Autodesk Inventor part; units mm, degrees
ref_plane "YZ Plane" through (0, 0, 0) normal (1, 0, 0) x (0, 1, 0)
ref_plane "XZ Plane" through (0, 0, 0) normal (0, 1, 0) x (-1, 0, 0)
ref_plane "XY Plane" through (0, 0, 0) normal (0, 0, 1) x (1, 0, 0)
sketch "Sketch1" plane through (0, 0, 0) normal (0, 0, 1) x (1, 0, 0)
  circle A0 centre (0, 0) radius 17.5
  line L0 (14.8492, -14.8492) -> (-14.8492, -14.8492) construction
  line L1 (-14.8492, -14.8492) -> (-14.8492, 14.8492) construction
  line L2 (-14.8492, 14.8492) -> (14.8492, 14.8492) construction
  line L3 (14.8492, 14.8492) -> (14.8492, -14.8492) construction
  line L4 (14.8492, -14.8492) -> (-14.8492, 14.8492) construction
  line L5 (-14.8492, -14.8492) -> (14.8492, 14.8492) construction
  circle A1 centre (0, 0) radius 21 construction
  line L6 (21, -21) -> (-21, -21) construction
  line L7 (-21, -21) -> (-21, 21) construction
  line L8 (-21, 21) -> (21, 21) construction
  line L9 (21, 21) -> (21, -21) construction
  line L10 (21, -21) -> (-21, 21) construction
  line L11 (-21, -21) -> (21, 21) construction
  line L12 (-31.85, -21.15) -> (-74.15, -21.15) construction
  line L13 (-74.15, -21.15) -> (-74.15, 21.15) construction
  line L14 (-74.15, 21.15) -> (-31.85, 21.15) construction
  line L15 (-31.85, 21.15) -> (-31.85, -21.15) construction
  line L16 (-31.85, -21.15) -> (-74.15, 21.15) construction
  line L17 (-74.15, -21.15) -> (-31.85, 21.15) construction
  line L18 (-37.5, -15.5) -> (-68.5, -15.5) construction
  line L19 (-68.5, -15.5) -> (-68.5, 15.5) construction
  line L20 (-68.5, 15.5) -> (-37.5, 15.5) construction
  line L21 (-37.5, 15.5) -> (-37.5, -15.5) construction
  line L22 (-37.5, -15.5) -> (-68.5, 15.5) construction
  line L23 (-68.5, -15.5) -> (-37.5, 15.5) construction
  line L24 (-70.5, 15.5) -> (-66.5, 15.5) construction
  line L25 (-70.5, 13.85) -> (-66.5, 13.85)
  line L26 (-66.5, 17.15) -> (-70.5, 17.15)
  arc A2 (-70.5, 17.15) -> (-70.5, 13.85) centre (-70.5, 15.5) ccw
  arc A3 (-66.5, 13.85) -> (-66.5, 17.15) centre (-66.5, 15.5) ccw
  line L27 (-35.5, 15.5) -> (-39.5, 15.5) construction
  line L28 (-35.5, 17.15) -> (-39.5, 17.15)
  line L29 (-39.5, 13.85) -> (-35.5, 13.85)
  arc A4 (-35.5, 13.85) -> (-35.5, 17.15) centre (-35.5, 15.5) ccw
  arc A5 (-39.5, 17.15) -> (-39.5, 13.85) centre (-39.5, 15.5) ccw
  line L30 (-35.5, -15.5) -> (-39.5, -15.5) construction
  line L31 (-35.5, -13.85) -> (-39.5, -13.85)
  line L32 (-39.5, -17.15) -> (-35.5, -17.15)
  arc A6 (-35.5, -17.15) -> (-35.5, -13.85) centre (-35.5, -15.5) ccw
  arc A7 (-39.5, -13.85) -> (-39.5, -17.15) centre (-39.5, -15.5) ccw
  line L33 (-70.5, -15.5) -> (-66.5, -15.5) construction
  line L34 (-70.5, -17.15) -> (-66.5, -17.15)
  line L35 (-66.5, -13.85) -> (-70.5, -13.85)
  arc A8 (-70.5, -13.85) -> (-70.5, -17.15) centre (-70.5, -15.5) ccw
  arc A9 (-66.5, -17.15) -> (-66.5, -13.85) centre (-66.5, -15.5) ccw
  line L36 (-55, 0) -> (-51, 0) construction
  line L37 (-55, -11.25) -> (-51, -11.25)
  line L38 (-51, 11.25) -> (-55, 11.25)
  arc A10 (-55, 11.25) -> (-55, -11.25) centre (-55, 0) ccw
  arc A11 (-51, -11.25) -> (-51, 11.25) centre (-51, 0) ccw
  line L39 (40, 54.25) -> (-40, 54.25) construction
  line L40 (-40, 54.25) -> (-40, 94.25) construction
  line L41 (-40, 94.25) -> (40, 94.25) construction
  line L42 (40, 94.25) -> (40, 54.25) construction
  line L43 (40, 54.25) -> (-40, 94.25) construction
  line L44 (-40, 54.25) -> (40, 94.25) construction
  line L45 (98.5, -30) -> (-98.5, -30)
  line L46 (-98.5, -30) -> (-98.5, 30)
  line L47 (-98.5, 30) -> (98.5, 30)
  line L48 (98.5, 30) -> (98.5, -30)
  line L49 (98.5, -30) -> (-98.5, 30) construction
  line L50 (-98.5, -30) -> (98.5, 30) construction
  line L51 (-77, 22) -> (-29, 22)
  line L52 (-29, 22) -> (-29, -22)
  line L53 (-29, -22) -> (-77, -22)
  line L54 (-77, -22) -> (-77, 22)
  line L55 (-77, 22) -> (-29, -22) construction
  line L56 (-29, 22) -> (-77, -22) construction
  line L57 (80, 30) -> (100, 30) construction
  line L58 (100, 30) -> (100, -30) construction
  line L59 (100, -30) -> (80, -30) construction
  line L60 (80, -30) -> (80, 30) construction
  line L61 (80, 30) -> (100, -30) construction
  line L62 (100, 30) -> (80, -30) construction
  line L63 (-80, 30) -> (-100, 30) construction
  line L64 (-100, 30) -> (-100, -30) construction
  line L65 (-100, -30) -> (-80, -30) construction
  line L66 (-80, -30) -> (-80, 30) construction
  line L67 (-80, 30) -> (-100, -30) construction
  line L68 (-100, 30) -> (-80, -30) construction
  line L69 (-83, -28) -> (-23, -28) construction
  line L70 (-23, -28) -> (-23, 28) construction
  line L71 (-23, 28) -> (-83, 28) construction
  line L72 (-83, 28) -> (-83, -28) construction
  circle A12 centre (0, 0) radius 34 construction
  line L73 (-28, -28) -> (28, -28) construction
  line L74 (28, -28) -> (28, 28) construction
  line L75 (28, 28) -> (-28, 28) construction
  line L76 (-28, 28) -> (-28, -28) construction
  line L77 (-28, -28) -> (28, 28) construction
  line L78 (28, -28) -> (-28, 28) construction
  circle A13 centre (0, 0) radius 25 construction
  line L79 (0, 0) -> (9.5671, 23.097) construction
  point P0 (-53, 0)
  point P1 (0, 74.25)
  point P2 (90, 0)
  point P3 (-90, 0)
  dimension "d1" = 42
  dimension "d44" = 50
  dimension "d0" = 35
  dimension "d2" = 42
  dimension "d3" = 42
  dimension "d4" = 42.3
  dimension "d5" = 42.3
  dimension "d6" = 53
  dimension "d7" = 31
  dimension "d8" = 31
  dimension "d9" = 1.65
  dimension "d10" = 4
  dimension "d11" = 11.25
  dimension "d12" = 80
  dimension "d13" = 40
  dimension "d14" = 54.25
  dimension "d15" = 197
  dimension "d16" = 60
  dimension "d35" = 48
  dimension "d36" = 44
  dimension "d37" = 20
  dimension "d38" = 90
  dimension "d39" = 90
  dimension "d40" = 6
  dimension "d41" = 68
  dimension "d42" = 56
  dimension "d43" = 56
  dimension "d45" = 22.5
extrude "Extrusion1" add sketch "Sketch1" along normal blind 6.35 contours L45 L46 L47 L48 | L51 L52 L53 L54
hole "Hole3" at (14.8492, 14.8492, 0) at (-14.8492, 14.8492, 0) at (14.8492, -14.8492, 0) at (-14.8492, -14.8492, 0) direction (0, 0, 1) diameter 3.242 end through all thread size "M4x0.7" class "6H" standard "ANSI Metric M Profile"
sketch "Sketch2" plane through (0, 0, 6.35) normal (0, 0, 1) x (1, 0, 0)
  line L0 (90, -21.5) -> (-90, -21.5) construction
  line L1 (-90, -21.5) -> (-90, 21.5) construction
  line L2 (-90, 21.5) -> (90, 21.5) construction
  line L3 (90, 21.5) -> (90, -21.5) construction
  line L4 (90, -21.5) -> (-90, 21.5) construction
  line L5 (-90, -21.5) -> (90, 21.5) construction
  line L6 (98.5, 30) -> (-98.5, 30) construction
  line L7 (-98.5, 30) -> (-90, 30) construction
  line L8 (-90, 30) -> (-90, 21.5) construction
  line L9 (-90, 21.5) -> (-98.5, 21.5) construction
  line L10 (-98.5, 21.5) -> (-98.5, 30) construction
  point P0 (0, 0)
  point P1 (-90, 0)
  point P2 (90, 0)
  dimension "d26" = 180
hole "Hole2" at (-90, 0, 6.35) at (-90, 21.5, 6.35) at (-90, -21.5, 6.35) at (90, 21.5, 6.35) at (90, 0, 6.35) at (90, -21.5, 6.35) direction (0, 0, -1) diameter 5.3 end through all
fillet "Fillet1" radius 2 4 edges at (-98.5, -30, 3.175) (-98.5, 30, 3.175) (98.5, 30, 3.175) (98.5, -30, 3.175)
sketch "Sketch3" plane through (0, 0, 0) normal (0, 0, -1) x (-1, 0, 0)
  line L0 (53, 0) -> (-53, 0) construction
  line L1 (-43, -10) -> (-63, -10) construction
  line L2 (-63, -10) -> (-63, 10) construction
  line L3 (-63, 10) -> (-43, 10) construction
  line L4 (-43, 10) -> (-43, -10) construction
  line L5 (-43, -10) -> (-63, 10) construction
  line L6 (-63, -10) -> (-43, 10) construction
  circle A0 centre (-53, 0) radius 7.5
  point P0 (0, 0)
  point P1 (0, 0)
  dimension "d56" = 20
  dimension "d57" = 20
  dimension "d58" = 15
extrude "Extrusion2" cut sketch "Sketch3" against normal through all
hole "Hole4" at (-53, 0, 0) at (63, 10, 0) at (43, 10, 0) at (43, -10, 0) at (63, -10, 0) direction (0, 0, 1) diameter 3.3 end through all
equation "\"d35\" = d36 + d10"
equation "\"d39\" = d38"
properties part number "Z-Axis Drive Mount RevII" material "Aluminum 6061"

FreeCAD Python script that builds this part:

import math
import FreeCAD as App
import Part
import Sketcher

V = App.Vector


def edges_at(feature, points):
    """Names of the edges that pass closest to the given points."""
    edges = feature.Shape.Edges
    near = lambda p: min(range(len(edges)), key=lambda i: edges[i].distToShape(Part.Vertex(*p))[0])
    return sorted({f"Edge{near(p) + 1}" for p in points})


def add_polygon(sketch, points):
    """Adds a closed chain of lines whose ends are joined by coincident constraints."""
    first, n = sketch.GeometryCount, len(points)
    for a, b in zip(points, points[1:] + points[:1]):
        sketch.addGeometry(Part.LineSegment(App.Vector(*a, 0), App.Vector(*b, 0)), False)
    for i in range(n):
        sketch.addConstraint(Sketcher.Constraint("Coincident", first + i, 2, first + (i + 1) % n, 1))

doc = App.newDocument("Part")
params = doc.addObject("Spreadsheet::Sheet", "Params")
for row, (alias, value) in enumerate([
    ("sketch1_diameter", "35 mm"),
    ("sketch1_width", "197 mm"),
    ("sketch1_width2", "4 mm"),
    ("sketch1_height", "60 mm"),
    ("sketch1_radius", "1.65 mm"),
    ("pad1_length", "6.35 mm"),
    ("hole_diameter", "3.242 mm"),
    ("sketch3_diameter", "5.3 mm"),
    ("hole2_diameter", "5.3 mm"),
    ("fillet_radius", "2 mm"),
    ("sketch4_diameter", "15 mm"),
    ("sketch5_diameter", "3.3 mm"),
    ("hole3_diameter", "3.3 mm"),
], start=1):
    params.set(f"A{row}", alias)
    params.set(f"B{row}", "=" + value)
    params.setAlias(f"B{row}", alias)

body = doc.addObject("PartDesign::Body", "Body")

# Sketch on XY plane
sketch1 = body.newObject("Sketcher::SketchObject", "Sketch")
sketch1.AttachmentSupport = (doc.getObject("XY_Plane"), [""])
sketch1.MapMode = "FlatFace"
add_polygon(sketch1, [(-98.5, -30), (98.5, -30), (98.5, 30), (-98.5, 30)])  # lines 0-3
sketch1.addGeometry(Part.Circle(V(0, 0, 0), V(0, 0, 1), 17.5), False)  # 4
sketch1.addGeometry(Part.LineSegment(V(-39.5, 17.1, 0), V(-35.5, 17.1, 0)), False)  # 5
sketch1.addGeometry(Part.ArcOfCircle(Part.Circle(V(-35.5, 15.5, 0), V(0, 0, 1), 1.7), math.radians(-90), math.radians(90)), False)  # 6
sketch1.addGeometry(Part.LineSegment(V(-35.5, 13.8, 0), V(-39.5, 13.8, 0)), False)  # 7
sketch1.addGeometry(Part.ArcOfCircle(Part.Circle(V(-39.5, 15.5, 0), V(0, 0, 1), 1.6), math.radians(90), math.radians(270)), False)  # 8
sketch1.addGeometry(Part.LineSegment(V(-66.5, -17.1, 0), V(-70.5, -17.1, 0)), False)  # 9
sketch1.addGeometry(Part.ArcOfCircle(Part.Circle(V(-70.5, -15.5, 0), V(0, 0, 1), 1.7), math.radians(90), math.radians(270)), False)  # 10
sketch1.addGeometry(Part.LineSegment(V(-70.5, -13.8, 0), V(-66.5, -13.8, 0)), False)  # 11
sketch1.addGeometry(Part.ArcOfCircle(Part.Circle(V(-66.5, -15.5, 0), V(0, 0, 1), 1.6), math.radians(-90), math.radians(90)), False)  # 12
sketch1.addGeometry(Part.LineSegment(V(-39.5, -13.8, 0), V(-35.5, -13.8, 0)), False)  # 13
sketch1.addGeometry(Part.ArcOfCircle(Part.Circle(V(-35.5, -15.5, 0), V(0, 0, 1), 1.6), math.radians(-90), math.radians(90)), False)  # 14
sketch1.addGeometry(Part.LineSegment(V(-35.5, -17.1, 0), V(-39.5, -17.1, 0)), False)  # 15
sketch1.addGeometry(Part.ArcOfCircle(Part.Circle(V(-39.5, -15.5, 0), V(0, 0, 1), 1.7), math.radians(90), math.radians(270)), False)  # 16
sketch1.addGeometry(Part.LineSegment(V(-51, -11.2, 0), V(-55, -11.2, 0)), False)  # 17
sketch1.addGeometry(Part.ArcOfCircle(Part.Circle(V(-55, 0, 0), V(0, 0, 1), 11.2), math.radians(90), math.radians(270)), False)  # 18
sketch1.addGeometry(Part.LineSegment(V(-55, 11.2, 0), V(-51, 11.2, 0)), False)  # 19
sketch1.addGeometry(Part.ArcOfCircle(Part.Circle(V(-51, 0, 0), V(0, 0, 1), 11.2), math.radians(-90), math.radians(90)), False)  # 20
sketch1.addGeometry(Part.LineSegment(V(-66.5, 13.8, 0), V(-70.5, 13.8, 0)), False)  # 21
sketch1.addGeometry(Part.ArcOfCircle(Part.Circle(V(-70.5, 15.5, 0), V(0, 0, 1), 1.6), math.radians(90), math.radians(270)), False)  # 22
sketch1.addGeometry(Part.LineSegment(V(-70.5, 17.1, 0), V(-66.5, 17.1, 0)), False)  # 23
sketch1.addGeometry(Part.ArcOfCircle(Part.Circle(V(-66.5, 15.5, 0), V(0, 0, 1), 1.7), math.radians(-90), math.radians(90)), False)  # 24
sketch1.addConstraint([
    Sketcher.Constraint("Tangent", 5, 2, 6, 2),
    Sketcher.Constraint("Tangent", 6, 1, 7, 1),
    Sketcher.Constraint("Tangent", 7, 2, 8, 2),
    Sketcher.Constraint("Tangent", 8, 1, 5, 1),
    Sketcher.Constraint("Tangent", 9, 2, 10, 2),
    Sketcher.Constraint("Tangent", 10, 1, 11, 1),
    Sketcher.Constraint("Tangent", 11, 2, 12, 2),
    Sketcher.Constraint("Tangent", 12, 1, 9, 1),
    Sketcher.Constraint("Tangent", 13, 2, 14, 2),
    Sketcher.Constraint("Tangent", 14, 1, 15, 1),
    Sketcher.Constraint("Tangent", 15, 2, 16, 2),
    Sketcher.Constraint("Tangent", 16, 1, 13, 1),
    Sketcher.Constraint("Tangent", 17, 2, 18, 2),
    Sketcher.Constraint("Tangent", 18, 1, 19, 1),
    Sketcher.Constraint("Tangent", 19, 2, 20, 2),
    Sketcher.Constraint("Tangent", 20, 1, 17, 1),
    Sketcher.Constraint("Tangent", 21, 2, 22, 2),
    Sketcher.Constraint("Tangent", 22, 1, 23, 1),
    Sketcher.Constraint("Tangent", 23, 2, 24, 2),
    Sketcher.Constraint("Tangent", 24, 1, 21, 1),
    Sketcher.Constraint("Horizontal", 0),
    Sketcher.Constraint("Vertical", 1),
    Sketcher.Constraint("Horizontal", 2),
    Sketcher.Constraint("Vertical", 3),
    Sketcher.Constraint("Horizontal", 5),
    Sketcher.Constraint("Horizontal", 7),
    Sketcher.Constraint("Horizontal", 9),
    Sketcher.Constraint("Horizontal", 11),
    Sketcher.Constraint("Horizontal", 13),
    Sketcher.Constraint("Horizontal", 15),
    Sketcher.Constraint("Horizontal", 17),
    Sketcher.Constraint("Horizontal", 19),
    Sketcher.Constraint("Horizontal", 21),
    Sketcher.Constraint("Horizontal", 23),
    Sketcher.Constraint("Coincident", 4, 3, -1, 1),
    Sketcher.Constraint("Equal", 8, 10),
    Sketcher.Constraint("Equal", 12, 14),
    Sketcher.Constraint("Equal", 16, 22),
    Sketcher.Constraint("Symmetric", 0, 2, 2, 2, -1, 1),
    Sketcher.Constraint("Symmetric", 6, 3, 14, 3, -1),
    Sketcher.Constraint("Symmetric", 10, 3, 22, 3, -1),
    Sketcher.Constraint("PointOnObject", 18, 3, -1),
    Sketcher.Constraint("Horizontal", 12, 3, 14, 3),
    Sketcher.Constraint("Vertical", 8, 3, 16, 3),
    Sketcher.Constraint("Vertical", 12, 3, 24, 3),
    Sketcher.Constraint("Equal", 7, 9),
    Sketcher.Constraint("Equal", 15, 17),
    Sketcher.Constraint("Diameter", 4, 35.0),
    Sketcher.Constraint("DistanceX", 0, 1, 0, 2, 197.0),
    Sketcher.Constraint("DistanceX", 5, 1, 5, 2, 4.0),
    Sketcher.Constraint("DistanceY", 1, 1, 1, 2, 60.0),
    Sketcher.Constraint("Radius", 6, 1.65),
    Sketcher.Constraint("Radius", 18, 11.25),
    Sketcher.Constraint("DistanceX", 10, 3, 8, 3, 31.0),
    Sketcher.Constraint("DistanceY", 10, 3, 8, 3, 31.0),
    Sketcher.Constraint("DistanceX", 18, 3, -1, 1, 55.0),
    Sketcher.Constraint("DistanceX", 14, 3, 0, 2, 134.0),
])
sketch1.setExpression("Constraints[51]", "Params.sketch1_diameter")
sketch1.setExpression("Constraints[52]", "Params.sketch1_width")
sketch1.setExpression("Constraints[53]", "Params.sketch1_width2")
sketch1.setExpression("Constraints[54]", "Params.sketch1_height")
sketch1.setExpression("Constraints[55]", "Params.sketch1_radius")
pad1 = body.newObject("PartDesign::Pad", "Pad")
pad1.Profile = sketch1
pad1.setExpression("Length", "Params.pad1_length")

# Sketch on XY plane
sketch2 = body.newObject("Sketcher::SketchObject", "Sketch001")
sketch2.AttachmentSupport = (doc.getObject("XY_Plane"), [""])
sketch2.MapMode = "FlatFace"
sketch2.addGeometry([
    Part.Circle(V(14.8, 14.8, 0), V(0, 0, 1), 1.6),
    Part.Circle(V(-14.8, 14.8, 0), V(0, 0, 1), 1.6),
    Part.Circle(V(14.8, -14.8, 0), V(0, 0, 1), 1.6),
    Part.Circle(V(-14.8, -14.8, 0), V(0, 0, 1), 1.6),
], False)
sketch2.addConstraint([
    Sketcher.Constraint("Equal", 0, 1),
    Sketcher.Constraint("Equal", 1, 2),
    Sketcher.Constraint("Equal", 2, 3),
    Sketcher.Constraint("Symmetric", 1, 3, 2, 3, -1, 1),
    Sketcher.Constraint("Symmetric", 0, 3, 3, 3, -1, 1),
    Sketcher.Constraint("Symmetric", 0, 3, 1, 3, -2),
    Sketcher.Constraint("Diameter", 0, 3.242),
    Sketcher.Constraint("DistanceX", -1, 1, 0, 3, 14.8492),
    Sketcher.Constraint("DistanceY", -1, 1, 0, 3, 14.8492),
])
doc.recompute()
hole = body.newObject("PartDesign::Hole", "Hole")
hole.Profile = sketch2
hole.ThreadType = "None"
hole.setExpression("Diameter", "Params.hole_diameter")
hole.DepthType = "ThroughAll"
hole.Reversed = True

# Sketch on XY plane
sketch3 = body.newObject("Sketcher::SketchObject", "Sketch002")
sketch3.AttachmentSupport = (doc.getObject("XY_Plane"), [""])
sketch3.MapMode = "FlatFace"
sketch3.AttachmentOffset = App.Placement(V(0, 0, 6.35), App.Rotation())
sketch3.addGeometry([
    Part.Circle(V(-90, 0, 0), V(0, 0, 1), 2.6),  # 0
    Part.Circle(V(-90, 21.5, 0), V(0, 0, 1), 2.6),  # 1
    Part.Circle(V(-90, -21.5, 0), V(0, 0, 1), 2.6),  # 2
    Part.Circle(V(90, 21.5, 0), V(0, 0, 1), 2.6),  # 3
    Part.Circle(V(90, 0, 0), V(0, 0, 1), 2.6),  # 4
    Part.Circle(V(90, -21.5, 0), V(0, 0, 1), 2.6),  # 5
], False)
sketch3.addConstraint([
    Sketcher.Constraint("Equal", 0, 1),
    Sketcher.Constraint("Equal", 1, 2),
    Sketcher.Constraint("Equal", 2, 3),
    Sketcher.Constraint("Equal", 3, 4),
    Sketcher.Constraint("Equal", 4, 5),
    Sketcher.Constraint("Symmetric", 2, 3, 3, 3, -1, 1),
    Sketcher.Constraint("Symmetric", 0, 3, 4, 3, -1, 1),
    Sketcher.Constraint("Symmetric", 1, 3, 5, 3, -1, 1),
    Sketcher.Constraint("Symmetric", 1, 3, 3, 3, -2),
    Sketcher.Constraint("PointOnObject", 0, 3, -1),
    Sketcher.Constraint("Vertical", 0, 3, 1, 3),
    Sketcher.Constraint("Diameter", 0, 5.3),
    Sketcher.Constraint("DistanceX", 0, 3, -1, 1, 90.0),
    Sketcher.Constraint("DistanceY", 2, 3, 1, 3, 43.0),
])
sketch3.setExpression("Constraints[11]", "Params.sketch3_diameter")
doc.recompute()
hole2 = body.newObject("PartDesign::Hole", "Hole001")
hole2.Profile = sketch3
hole2.ThreadType = "None"
hole2.setExpression("Diameter", "Params.hole2_diameter")
hole2.DepthType = "ThroughAll"
doc.recompute()

fillet = body.newObject("PartDesign::Fillet", "Fillet")
fillet.Base = (hole2, edges_at(hole2, [
    (-98.5, -30, 3.175),
    (-98.5, 30, 3.175),
    (98.5, 30, 3.175),
    (98.5, -30, 3.175),
]))
fillet.setExpression("Radius", "Params.fillet_radius")

# Sketch on XY plane
sketch4 = body.newObject("Sketcher::SketchObject", "Sketch003")
sketch4.AttachmentSupport = (doc.getObject("XY_Plane"), [""])
sketch4.MapMode = "FlatFace"
sketch4.addGeometry(Part.Circle(V(53, 0, 0), V(0, 0, 1), 8), False)
sketch4.addConstraint([
    Sketcher.Constraint("PointOnObject", 0, 3, -1),
    Sketcher.Constraint("Diameter", 0, 15.0),
    Sketcher.Constraint("DistanceX", -1, 1, 0, 3, 53.0),
])
sketch4.setExpression("Constraints[1]", "Params.sketch4_diameter")
pocket1 = body.newObject("PartDesign::Pocket", "Pocket")
pocket1.Profile = sketch4
pocket1.Type = "ThroughAll"
pocket1.Reversed = True

# Sketch on XY plane
sketch5 = body.newObject("Sketcher::SketchObject", "Sketch004")
sketch5.AttachmentSupport = (doc.getObject("XY_Plane"), [""])
sketch5.MapMode = "FlatFace"
sketch5.addGeometry([
    Part.Circle(V(-53, 0, 0), V(0, 0, 1), 1.6),  # 0
    Part.Circle(V(63, 10, 0), V(0, 0, 1), 1.6),  # 1
    Part.Circle(V(43, 10, 0), V(0, 0, 1), 1.6),  # 2
    Part.Circle(V(43, -10, 0), V(0, 0, 1), 1.6),  # 3
    Part.Circle(V(63, -10, 0), V(0, 0, 1), 1.6),  # 4
], False)
sketch5.addConstraint([
    Sketcher.Constraint("Equal", 0, 1),
    Sketcher.Constraint("Equal", 1, 2),
    Sketcher.Constraint("Equal", 2, 3),
    Sketcher.Constraint("Equal", 3, 4),
    Sketcher.Constraint("Symmetric", 2, 3, 3, 3, -1),
    Sketcher.Constraint("Symmetric", 1, 3, 4, 3, -1),
    Sketcher.Constraint("PointOnObject", 0, 3, -1),
    Sketcher.Constraint("Horizontal", 1, 3, 2, 3),
    Sketcher.Constraint("Diameter", 0, 3.3),
    Sketcher.Constraint("DistanceX", 0, 3, -1, 1, 53.0),
    Sketcher.Constraint("DistanceX", -1, 1, 1, 3, 63.0),
    Sketcher.Constraint("DistanceY", -1, 1, 1, 3, 10.0),
    Sketcher.Constraint("DistanceX", -1, 1, 2, 3, 43.0),
])
sketch5.setExpression("Constraints[8]", "Params.sketch5_diameter")
doc.recompute()
hole3 = body.newObject("PartDesign::Hole", "Hole002")
hole3.Profile = sketch5
hole3.ThreadType = "None"
hole3.setExpression("Diameter", "Params.hole3_diameter")
hole3.DepthType = "ThroughAll"
hole3.Reversed = True

doc.recompute()
